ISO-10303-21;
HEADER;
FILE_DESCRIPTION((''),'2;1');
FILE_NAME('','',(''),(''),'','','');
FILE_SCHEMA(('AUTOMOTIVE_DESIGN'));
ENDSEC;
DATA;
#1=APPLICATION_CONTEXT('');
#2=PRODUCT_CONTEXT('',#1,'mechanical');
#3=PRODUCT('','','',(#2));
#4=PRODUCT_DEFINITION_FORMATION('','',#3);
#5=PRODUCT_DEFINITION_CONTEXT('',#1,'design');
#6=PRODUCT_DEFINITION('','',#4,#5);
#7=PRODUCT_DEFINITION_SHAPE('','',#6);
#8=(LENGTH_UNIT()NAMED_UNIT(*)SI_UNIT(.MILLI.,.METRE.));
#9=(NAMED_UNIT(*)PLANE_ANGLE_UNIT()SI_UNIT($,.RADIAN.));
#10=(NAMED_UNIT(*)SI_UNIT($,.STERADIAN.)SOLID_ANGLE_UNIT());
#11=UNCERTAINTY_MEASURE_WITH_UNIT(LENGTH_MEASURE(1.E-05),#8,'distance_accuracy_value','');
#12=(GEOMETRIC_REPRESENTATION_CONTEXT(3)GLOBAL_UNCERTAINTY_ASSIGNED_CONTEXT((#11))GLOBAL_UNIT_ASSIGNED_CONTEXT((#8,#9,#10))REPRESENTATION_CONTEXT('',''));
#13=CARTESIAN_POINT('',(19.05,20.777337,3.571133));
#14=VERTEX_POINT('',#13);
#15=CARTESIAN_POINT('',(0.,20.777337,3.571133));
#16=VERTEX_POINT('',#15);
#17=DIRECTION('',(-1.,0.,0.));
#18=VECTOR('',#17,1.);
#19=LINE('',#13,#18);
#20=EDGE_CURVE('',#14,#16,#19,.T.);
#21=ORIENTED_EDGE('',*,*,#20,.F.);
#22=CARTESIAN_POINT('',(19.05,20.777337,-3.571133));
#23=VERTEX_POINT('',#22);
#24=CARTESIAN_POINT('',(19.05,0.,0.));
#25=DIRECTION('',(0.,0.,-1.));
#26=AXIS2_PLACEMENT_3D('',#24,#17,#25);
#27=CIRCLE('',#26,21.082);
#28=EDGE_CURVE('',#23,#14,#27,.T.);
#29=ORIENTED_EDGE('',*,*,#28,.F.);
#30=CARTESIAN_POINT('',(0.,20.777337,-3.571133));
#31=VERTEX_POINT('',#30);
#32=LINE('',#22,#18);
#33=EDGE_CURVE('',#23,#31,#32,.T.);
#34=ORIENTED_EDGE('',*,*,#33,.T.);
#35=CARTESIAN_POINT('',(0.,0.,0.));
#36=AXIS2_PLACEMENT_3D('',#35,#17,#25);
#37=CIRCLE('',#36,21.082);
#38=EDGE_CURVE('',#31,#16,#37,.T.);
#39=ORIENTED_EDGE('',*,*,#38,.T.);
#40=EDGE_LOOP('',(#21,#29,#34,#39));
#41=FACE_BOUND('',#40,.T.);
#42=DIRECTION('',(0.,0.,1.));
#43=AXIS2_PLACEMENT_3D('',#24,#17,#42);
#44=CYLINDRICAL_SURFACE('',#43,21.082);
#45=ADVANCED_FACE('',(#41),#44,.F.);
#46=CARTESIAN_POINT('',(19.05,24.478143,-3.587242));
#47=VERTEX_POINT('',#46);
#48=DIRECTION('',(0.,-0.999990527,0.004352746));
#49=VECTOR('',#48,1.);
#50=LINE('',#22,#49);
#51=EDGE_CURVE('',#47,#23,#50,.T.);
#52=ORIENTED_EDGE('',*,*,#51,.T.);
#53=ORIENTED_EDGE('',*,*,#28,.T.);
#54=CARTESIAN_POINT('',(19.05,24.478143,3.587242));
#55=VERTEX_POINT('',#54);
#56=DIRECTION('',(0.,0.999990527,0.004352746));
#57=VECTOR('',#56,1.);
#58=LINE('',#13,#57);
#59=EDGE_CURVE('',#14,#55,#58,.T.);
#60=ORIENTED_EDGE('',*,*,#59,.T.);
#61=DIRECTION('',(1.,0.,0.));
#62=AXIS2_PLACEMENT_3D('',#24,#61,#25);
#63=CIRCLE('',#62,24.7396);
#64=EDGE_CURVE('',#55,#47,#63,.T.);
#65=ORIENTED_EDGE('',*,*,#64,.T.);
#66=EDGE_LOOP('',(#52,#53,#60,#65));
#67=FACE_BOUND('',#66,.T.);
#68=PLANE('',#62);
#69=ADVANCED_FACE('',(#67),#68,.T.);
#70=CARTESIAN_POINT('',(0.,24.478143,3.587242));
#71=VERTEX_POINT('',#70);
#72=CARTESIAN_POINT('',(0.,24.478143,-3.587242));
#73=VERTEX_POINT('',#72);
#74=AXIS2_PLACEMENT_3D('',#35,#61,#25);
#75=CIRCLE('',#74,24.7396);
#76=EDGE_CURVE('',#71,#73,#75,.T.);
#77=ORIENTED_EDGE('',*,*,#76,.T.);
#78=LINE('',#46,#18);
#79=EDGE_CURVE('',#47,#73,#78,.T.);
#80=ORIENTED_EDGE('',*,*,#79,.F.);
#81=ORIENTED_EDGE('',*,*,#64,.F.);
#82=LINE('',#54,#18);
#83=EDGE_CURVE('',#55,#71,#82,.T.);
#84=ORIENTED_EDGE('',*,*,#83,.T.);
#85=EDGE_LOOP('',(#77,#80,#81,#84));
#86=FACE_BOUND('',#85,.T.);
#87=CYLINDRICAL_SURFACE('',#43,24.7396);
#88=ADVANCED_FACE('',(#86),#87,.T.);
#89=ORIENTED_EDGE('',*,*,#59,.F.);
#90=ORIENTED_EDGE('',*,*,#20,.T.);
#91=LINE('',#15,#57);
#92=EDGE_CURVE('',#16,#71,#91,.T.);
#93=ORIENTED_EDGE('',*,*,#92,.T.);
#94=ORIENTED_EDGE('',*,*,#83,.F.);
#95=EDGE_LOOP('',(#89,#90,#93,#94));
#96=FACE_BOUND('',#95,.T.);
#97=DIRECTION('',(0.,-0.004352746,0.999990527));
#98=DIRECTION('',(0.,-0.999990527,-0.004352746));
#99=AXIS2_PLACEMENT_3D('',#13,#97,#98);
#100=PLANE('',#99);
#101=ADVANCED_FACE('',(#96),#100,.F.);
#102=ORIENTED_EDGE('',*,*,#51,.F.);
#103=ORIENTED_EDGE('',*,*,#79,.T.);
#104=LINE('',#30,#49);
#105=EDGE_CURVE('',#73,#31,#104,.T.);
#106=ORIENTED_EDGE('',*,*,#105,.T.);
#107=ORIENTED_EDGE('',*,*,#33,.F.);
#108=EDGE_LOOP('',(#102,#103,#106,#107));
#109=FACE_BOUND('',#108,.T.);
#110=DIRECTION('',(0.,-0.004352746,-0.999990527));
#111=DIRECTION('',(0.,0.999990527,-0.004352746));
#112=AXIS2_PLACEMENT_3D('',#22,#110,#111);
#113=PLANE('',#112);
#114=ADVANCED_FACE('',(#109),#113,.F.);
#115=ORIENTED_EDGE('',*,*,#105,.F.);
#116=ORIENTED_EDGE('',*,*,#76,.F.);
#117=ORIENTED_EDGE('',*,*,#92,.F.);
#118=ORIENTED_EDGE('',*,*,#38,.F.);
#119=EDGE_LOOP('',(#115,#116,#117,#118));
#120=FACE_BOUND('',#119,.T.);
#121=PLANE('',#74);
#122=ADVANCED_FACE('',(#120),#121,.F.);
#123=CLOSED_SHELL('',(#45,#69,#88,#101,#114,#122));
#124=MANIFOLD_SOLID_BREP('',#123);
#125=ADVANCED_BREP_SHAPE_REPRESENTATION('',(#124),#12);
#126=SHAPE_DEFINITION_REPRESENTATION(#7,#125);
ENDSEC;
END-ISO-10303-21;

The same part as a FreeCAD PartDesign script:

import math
import FreeCAD as App
import Part
import Sketcher
Q = App.Units.Quantity

doc = App.newDocument("Part")
body = doc.addObject("PartDesign::Body", "Body")

# Sketch on YZ plane
sketch1 = body.newObject("Sketcher::SketchObject", "Sketch")
sketch1.AttachmentSupport = (doc.getObject("YZ_Plane"), [""])
sketch1.MapMode = "FlatFace"
sketch1.addGeometry(Part.LineSegment(App.Vector(24.5, -3.6, 0), App.Vector(20.8, -3.6, 0)), False)
sketch1.addGeometry(Part.ArcOfCircle(Part.Circle(App.Vector(0, 0, 0), App.Vector(0, 0, 1), 21.1), math.radians(10), math.radians(350)), False)
sketch1.addGeometry(Part.LineSegment(App.Vector(20.8, 3.6, 0), App.Vector(24.5, 3.6, 0)), False)
sketch1.addGeometry(Part.ArcOfCircle(Part.Circle(App.Vector(0, 0, 0), App.Vector(0, 0, 1), 24.7), math.radians(8), math.radians(352)), False)
sketch1.addConstraint(Sketcher.Constraint("Coincident", 0, 2, 1, 2))
sketch1.addConstraint(Sketcher.Constraint("Coincident", 1, 1, 2, 1))
sketch1.addConstraint(Sketcher.Constraint("Coincident", 2, 2, 3, 1))
sketch1.addConstraint(Sketcher.Constraint("Coincident", 3, 2, 0, 1))
sketch1.addConstraint(Sketcher.Constraint("Coincident", 1, 3, -1, 1))
sketch1.addConstraint(Sketcher.Constraint("Coincident", 3, 3, -1, 1))
sketch1.addConstraint(Sketcher.Constraint("Vertical", 0, 2, 1, 1))
sketch1.addConstraint(Sketcher.Constraint("Vertical", 2, 2, 3, 2))
sketch1.addConstraint(Sketcher.Constraint("Radius", 1, Q("0.83 in")))
sketch1.addConstraint(Sketcher.Constraint("Radius", 3, Q("0.974 in")))
sketch1.addConstraint(Sketcher.Constraint("Distance", 0, Q("3.700841 mm")))
sketch1.addConstraint(Sketcher.Constraint("DistanceY", -1, 1, 2, 2, Q("3.587242 mm")))
pad1 = body.newObject("PartDesign::Pad", "Pad")
pad1.Profile = sketch1
pad1.Length = Q("0.75 in")

doc.recompute()
